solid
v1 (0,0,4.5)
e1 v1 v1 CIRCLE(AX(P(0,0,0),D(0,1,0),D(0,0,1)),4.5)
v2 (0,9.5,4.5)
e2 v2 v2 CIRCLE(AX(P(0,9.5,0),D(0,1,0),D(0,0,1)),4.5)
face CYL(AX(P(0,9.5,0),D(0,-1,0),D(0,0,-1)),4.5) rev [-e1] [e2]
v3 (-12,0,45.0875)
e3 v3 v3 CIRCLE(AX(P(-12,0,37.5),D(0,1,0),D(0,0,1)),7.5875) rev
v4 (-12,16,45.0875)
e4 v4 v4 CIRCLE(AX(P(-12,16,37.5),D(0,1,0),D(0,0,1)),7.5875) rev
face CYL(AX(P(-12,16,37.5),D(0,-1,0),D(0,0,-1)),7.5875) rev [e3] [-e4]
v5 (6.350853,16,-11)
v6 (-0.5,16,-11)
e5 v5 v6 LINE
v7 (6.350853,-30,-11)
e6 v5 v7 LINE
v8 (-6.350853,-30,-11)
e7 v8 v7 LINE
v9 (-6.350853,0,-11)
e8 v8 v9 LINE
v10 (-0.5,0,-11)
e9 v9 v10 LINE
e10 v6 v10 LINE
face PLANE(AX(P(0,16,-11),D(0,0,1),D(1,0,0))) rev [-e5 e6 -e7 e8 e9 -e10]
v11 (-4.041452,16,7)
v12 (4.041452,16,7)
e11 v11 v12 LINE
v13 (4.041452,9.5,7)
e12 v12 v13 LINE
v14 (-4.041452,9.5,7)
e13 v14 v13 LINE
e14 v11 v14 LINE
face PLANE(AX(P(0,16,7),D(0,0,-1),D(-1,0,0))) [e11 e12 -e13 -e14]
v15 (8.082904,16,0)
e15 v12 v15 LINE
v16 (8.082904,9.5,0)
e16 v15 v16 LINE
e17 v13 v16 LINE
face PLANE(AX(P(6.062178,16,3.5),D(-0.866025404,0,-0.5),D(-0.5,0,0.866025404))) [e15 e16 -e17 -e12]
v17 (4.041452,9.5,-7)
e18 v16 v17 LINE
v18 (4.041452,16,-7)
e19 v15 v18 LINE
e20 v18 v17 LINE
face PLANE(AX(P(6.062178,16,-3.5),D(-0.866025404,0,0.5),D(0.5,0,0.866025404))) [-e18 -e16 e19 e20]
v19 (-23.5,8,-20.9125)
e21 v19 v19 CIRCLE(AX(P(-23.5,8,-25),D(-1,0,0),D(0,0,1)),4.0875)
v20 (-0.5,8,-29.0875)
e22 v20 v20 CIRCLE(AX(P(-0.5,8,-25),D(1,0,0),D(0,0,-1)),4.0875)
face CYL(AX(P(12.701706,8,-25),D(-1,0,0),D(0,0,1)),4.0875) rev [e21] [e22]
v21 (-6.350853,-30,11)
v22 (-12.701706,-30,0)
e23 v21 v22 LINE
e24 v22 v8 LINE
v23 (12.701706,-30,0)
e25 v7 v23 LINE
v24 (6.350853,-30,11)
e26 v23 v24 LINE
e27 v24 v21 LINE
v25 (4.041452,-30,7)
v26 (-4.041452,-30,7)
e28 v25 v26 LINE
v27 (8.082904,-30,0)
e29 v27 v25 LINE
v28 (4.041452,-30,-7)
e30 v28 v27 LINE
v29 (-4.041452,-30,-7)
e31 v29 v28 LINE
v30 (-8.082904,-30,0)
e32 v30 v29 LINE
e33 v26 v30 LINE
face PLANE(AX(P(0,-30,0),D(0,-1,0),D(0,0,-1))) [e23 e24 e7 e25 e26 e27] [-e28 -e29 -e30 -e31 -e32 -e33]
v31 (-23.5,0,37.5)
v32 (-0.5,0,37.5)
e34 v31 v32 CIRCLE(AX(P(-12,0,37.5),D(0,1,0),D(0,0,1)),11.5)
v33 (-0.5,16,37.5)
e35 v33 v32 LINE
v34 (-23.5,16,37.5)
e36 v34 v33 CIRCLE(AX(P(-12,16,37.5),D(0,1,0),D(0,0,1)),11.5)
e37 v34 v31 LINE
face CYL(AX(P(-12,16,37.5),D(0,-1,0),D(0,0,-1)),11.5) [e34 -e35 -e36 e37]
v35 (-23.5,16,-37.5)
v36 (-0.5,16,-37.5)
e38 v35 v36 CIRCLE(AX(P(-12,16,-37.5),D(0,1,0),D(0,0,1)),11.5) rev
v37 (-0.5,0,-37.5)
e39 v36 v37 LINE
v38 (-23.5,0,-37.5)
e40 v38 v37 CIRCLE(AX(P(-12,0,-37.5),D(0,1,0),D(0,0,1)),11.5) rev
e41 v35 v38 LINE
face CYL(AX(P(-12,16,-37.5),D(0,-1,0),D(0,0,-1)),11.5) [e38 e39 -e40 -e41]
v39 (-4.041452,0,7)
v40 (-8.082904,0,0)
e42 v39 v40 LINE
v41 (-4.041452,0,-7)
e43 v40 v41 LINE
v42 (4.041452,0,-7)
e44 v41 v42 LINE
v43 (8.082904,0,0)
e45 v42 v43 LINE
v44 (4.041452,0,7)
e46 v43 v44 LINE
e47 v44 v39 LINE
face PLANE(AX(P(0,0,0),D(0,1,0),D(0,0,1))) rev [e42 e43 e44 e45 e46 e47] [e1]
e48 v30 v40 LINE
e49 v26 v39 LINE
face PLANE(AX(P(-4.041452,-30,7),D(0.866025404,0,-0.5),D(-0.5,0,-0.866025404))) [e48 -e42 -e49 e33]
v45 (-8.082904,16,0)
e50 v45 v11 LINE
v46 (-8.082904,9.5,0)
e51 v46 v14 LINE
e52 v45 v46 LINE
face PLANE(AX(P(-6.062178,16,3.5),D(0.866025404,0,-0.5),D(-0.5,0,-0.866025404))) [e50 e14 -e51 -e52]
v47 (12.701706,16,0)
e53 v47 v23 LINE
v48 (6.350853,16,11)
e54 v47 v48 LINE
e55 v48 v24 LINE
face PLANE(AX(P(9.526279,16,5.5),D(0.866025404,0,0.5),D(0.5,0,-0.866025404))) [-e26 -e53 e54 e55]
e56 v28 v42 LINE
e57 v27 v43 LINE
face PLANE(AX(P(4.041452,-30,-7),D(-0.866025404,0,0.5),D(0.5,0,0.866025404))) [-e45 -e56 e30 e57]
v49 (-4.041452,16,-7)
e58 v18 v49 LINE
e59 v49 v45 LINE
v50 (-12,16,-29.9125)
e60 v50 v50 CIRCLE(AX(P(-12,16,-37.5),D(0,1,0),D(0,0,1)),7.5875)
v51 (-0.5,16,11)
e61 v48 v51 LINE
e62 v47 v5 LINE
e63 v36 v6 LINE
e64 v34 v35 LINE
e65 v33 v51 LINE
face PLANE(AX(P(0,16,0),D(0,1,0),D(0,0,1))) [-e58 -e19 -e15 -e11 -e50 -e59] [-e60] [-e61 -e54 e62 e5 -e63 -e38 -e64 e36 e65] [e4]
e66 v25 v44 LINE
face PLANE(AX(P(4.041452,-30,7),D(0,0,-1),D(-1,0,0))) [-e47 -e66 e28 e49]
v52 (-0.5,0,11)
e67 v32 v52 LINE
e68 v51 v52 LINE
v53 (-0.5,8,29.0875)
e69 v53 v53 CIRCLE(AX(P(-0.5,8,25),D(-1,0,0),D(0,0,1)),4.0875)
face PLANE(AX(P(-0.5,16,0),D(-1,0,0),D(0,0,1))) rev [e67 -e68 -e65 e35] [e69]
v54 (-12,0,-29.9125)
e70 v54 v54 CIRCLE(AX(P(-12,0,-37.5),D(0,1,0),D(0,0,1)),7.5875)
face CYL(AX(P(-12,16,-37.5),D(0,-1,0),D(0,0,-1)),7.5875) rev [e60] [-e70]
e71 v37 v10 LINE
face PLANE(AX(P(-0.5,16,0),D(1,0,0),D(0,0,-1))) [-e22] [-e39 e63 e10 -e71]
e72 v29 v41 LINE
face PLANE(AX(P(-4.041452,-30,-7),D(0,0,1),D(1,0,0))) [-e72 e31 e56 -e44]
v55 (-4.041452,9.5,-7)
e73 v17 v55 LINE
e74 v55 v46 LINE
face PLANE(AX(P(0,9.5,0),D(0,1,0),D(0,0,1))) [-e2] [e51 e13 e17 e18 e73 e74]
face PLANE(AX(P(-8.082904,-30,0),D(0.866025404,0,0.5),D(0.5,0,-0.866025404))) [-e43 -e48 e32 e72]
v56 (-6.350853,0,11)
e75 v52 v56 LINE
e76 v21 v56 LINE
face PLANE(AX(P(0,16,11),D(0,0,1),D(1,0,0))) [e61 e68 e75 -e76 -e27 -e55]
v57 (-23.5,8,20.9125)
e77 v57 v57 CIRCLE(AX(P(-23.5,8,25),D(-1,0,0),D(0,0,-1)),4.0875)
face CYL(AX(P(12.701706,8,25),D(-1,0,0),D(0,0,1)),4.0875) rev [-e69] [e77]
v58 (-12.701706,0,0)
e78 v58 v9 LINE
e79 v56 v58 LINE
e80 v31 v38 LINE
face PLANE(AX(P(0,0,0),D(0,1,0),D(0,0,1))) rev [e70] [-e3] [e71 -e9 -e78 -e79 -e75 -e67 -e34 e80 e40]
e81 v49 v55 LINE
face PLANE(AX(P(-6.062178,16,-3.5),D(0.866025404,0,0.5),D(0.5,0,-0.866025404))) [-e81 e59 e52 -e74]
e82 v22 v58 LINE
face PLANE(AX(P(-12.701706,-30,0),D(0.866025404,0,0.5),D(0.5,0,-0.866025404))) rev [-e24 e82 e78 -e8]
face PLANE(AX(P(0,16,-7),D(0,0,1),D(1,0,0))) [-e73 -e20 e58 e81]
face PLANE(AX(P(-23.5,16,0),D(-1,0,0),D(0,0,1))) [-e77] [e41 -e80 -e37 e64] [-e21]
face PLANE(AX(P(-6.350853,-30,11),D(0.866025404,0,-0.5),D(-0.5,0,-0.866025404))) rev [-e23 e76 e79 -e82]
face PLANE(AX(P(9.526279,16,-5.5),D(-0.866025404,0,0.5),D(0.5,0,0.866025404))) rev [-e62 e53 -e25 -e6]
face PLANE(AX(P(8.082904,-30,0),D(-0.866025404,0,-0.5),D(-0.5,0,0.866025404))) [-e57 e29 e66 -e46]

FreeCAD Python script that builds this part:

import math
import FreeCAD as App
import Part
import Sketcher
Q = App.Units.Quantity


def add_polygon(sketch, points):
    """Adds a closed chain of lines whose ends are joined by coincident constraints."""
    first, n = sketch.GeometryCount, len(points)
    for a, b in zip(points, points[1:] + points[:1]):
        sketch.addGeometry(Part.LineSegment(App.Vector(*a, 0), App.Vector(*b, 0)), False)
    for i in range(n):
        sketch.addConstraint(Sketcher.Constraint("Coincident", first + i, 2, first + (i + 1) % n, 1))

doc = App.newDocument("Part")
params = doc.addObject("Spreadsheet::Sheet", "Params")
for row, (alias, value) in enumerate([
    ("sketch1_radius", "11.5 mm"),
    ("sketch1_height", "75 mm"),
    ("sketch1_height2", "26.5 mm"),
    ("pad1_length", "16 mm"),
    ("sketch3_diameter", "9 mm"),
    ("pad2_length", "9.5 mm"),
    ("pad3_length", "30 mm"),
], start=1):
    params.set(f"A{row}", alias)
    params.set(f"B{row}", "=" + value)
    params.setAlias(f"B{row}", alias)

body = doc.addObject("PartDesign::Body", "Body")

# Sketch on XZ plane
sketch1 = doc.addObject("Sketcher::SketchObject", "Sketch")
body.addObject(sketch1)
sketch1.AttachmentSupport = (doc.XZ_Plane, [""])
sketch1.MapMode = "FlatFace"
sketch1.addGeometry(Part.ArcOfCircle(Part.Circle(App.Vector(-12, -38, 0), App.Vector(0, 0, 1), 12), math.radians(180), math.radians(360)), False)  # 0
sketch1.addGeometry(Part.LineSegment(App.Vector(-24, -38, 0), App.Vector(-24, 38, 0)), False)  # 1
sketch1.addGeometry(Part.ArcOfCircle(Part.Circle(App.Vector(-12, 38, 0), App.Vector(0, 0, 1), 12), math.radians(0), math.radians(180)), False)  # 2
sketch1.addGeometry(Part.LineSegment(App.Vector(0, 38, 0), App.Vector(0, 11, 0)), False)  # 3
sketch1.addGeometry(Part.LineSegment(App.Vector(0, 11, 0), App.Vector(6, 11, 0)), False)  # 4
sketch1.addGeometry(Part.LineSegment(App.Vector(6, 11, 0), App.Vector(13, 0, 0)), False)  # 5
sketch1.addGeometry(Part.LineSegment(App.Vector(13, 0, 0), App.Vector(6, -11, 0)), False)  # 6
sketch1.addGeometry(Part.LineSegment(App.Vector(6, -11, 0), App.Vector(0, -11, 0)), False)  # 7
sketch1.addGeometry(Part.LineSegment(App.Vector(0, -11, 0), App.Vector(0, -38, 0)), False)  # 8
sketch1.addGeometry(Part.Circle(App.Vector(-12, 38, 0), App.Vector(0, 0, 1), 8), False)  # 9
add_polygon(sketch1, [(8, 0), (4, 7), (-4, 7), (-8, 0), (-4, -7), (4, -7)])  # lines 10-15
sketch1.addGeometry(Part.Circle(App.Vector(-12, -38, 0), App.Vector(0, 0, 1), 8), False)  # 16
sketch1.addConstraint(Sketcher.Constraint("Tangent", 0, 1, 1, 1))
sketch1.addConstraint(Sketcher.Constraint("Tangent", 1, 2, 2, 2))
sketch1.addConstraint(Sketcher.Constraint("Tangent", 2, 1, 3, 1))
sketch1.addConstraint(Sketcher.Constraint("Coincident", 3, 2, 4, 1))
sketch1.addConstraint(Sketcher.Constraint("Coincident", 4, 2, 5, 1))
sketch1.addConstraint(Sketcher.Constraint("Coincident", 5, 2, 6, 1))
sketch1.addConstraint(Sketcher.Constraint("Coincident", 6, 2, 7, 1))
sketch1.addConstraint(Sketcher.Constraint("Coincident", 7, 2, 8, 1))
sketch1.addConstraint(Sketcher.Constraint("Tangent", 8, 2, 0, 2))
sketch1.addConstraint(Sketcher.Constraint("Vertical", 1))
sketch1.addConstraint(Sketcher.Constraint("Vertical", 3))
sketch1.addConstraint(Sketcher.Constraint("Horizontal", 4))
sketch1.addConstraint(Sketcher.Constraint("Horizontal", 7))
sketch1.addConstraint(Sketcher.Constraint("Vertical", 8))
sketch1.addConstraint(Sketcher.Constraint("Horizontal", 11))
sketch1.addConstraint(Sketcher.Constraint("Horizontal", 14))
sketch1.addConstraint(Sketcher.Constraint("Coincident", 9, 3, 2, 3))
sketch1.addConstraint(Sketcher.Constraint("Coincident", 16, 3, 0, 3))
sketch1.addConstraint(Sketcher.Constraint("Equal", 0, 2))
sketch1.addConstraint(Sketcher.Constraint("Equal", 9, 16))
sketch1.addConstraint(Sketcher.Constraint("Symmetric", 10, 2, 13, 2, -1, 1))
sketch1.addConstraint(Sketcher.Constraint("Symmetric", 12, 2, 15, 2, -1, 1))
sketch1.addConstraint(Sketcher.Constraint("Symmetric", 4, 2, 6, 2, -1))
sketch1.addConstraint(Sketcher.Constraint("PointOnObject", 5, 2, -1))
sketch1.addConstraint(Sketcher.Constraint("PointOnObject", 12, 2, -1))
sketch1.addConstraint(Sketcher.Constraint("Parallel", 5, 10))
sketch1.addConstraint(Sketcher.Constraint("Parallel", 6, 12))
sketch1.addConstraint(Sketcher.Constraint("Parallel", 12, 15))
sketch1.addConstraint(Sketcher.Constraint("Equal", 3, 8))
sketch1.addConstraint(Sketcher.Constraint("Radius", 0, 11.5))
sketch1.addConstraint(Sketcher.Constraint("DistanceY", 1, 1, 1, 2, 75.0))
sketch1.addConstraint(Sketcher.Constraint("Angle", 5, Q("-60 deg")))
sketch1.addConstraint(Sketcher.Constraint("Diameter", 9, 15.175))
sketch1.addConstraint(Sketcher.Constraint("DistanceY", 3, 2, 3, 1, 26.5))
sketch1.addConstraint(Sketcher.Constraint("DistanceX", 0, 3, -1, 1, 12.0))
sketch1.addConstraint(Sketcher.Constraint("DistanceY", -1, 1, 10, 2, 7.0))
sketch1.addConstraint(Sketcher.Constraint("DistanceX", 10, 2, 4, 2, 2.309401))
sketch1.addConstraint(Sketcher.Constraint("DistanceX", 4, 1, 4, 2, 6.850853))
sketch1.setExpression("Constraints[35]", "Params.sketch1_radius")
sketch1.setExpression("Constraints[36]", "Params.sketch1_height")
sketch1.setExpression("Constraints[39]", "Params.sketch1_height2")
pad1 = doc.addObject("PartDesign::Pad", "Pad")
body.addObject(pad1)
pad1.Profile = sketch1
pad1.setExpression("Length", "Params.pad1_length")
pad1.Reversed = True

# Sketch on YZ plane
sketch2 = doc.addObject("Sketcher::SketchObject", "Sketch001")
body.addObject(sketch2)
sketch2.AttachmentSupport = (doc.YZ_Plane, [""])
sketch2.MapMode = "FlatFace"
sketch2.AttachmentOffset = App.Placement(App.Vector(0, 0, -23.5), App.Rotation())
sketch2.addGeometry(Part.Circle(App.Vector(8, -25, 0), App.Vector(0, 0, 1), 4.1), False)
sketch2.addGeometry(Part.Circle(App.Vector(8, 25, 0), App.Vector(0, 0, 1), 4.1), False)
sketch2.addConstraint(Sketcher.Constraint("Equal", 0, 1))
sketch2.addConstraint(Sketcher.Constraint("Symmetric", 0, 3, 1, 3, -1))
sketch2.addConstraint(Sketcher.Constraint("Diameter", 0, 8.175))
sketch2.addConstraint(Sketcher.Constraint("DistanceX", -1, 1, 0, 3, 8.0))
sketch2.addConstraint(Sketcher.Constraint("DistanceY", 0, 3, -1, 1, 25.0))
pocket1 = doc.addObject("PartDesign::Pocket", "Pocket")
body.addObject(pocket1)
pocket1.Profile = sketch2
pocket1.Type = "ThroughAll"
pocket1.Reversed = True

# Sketch on XZ plane
sketch3 = doc.addObject("Sketcher::SketchObject", "Sketch002")
body.addObject(sketch3)
sketch3.AttachmentSupport = (doc.XZ_Plane, [""])
sketch3.MapMode = "FlatFace"
add_polygon(sketch3, [(-4, 7), (4, 7), (8.1, 0), (4, -7), (-4, -7), (-8.1, 0)])  # lines 0-5
sketch3.addGeometry(Part.Circle(App.Vector(0, 0, 0), App.Vector(0, 0, 1), 4.5), False)  # 6
sketch3.addConstraint(Sketcher.Constraint("Horizontal", 0))
sketch3.addConstraint(Sketcher.Constraint("Horizontal", 3))
sketch3.addConstraint(Sketcher.Constraint("Coincident", 6, 3, -1, 1))
sketch3.addConstraint(Sketcher.Constraint("Symmetric", 0, 2, 3, 2, -1, 1))
sketch3.addConstraint(Sketcher.Constraint("Symmetric", 1, 2, 4, 2, -1, 1))
sketch3.addConstraint(Sketcher.Constraint("PointOnObject", 1, 2, -1))
sketch3.addConstraint(Sketcher.Constraint("Parallel", 2, 5))
sketch3.addConstraint(Sketcher.Constraint("Vertical", 0, 2, 2, 2))
sketch3.addConstraint(Sketcher.Constraint("Diameter", 6, 9.0))
sketch3.addConstraint(Sketcher.Constraint("Angle", 1, Q("-60 deg")))
sketch3.addConstraint(Sketcher.Constraint("DistanceY", -1, 1, 0, 2, 7.0))
sketch3.addConstraint(Sketcher.Constraint("DistanceX", 0, 1, 0, 2, 8.082904))
sketch3.setExpression("Constraints[14]", "Params.sketch3_diameter")
pad2 = doc.addObject("PartDesign::Pad", "Pad001")
body.addObject(pad2)
pad2.Profile = sketch3
pad2.setExpression("Length", "Params.pad2_length")
pad2.Reversed = True

# Sketch on XZ plane
sketch4 = doc.addObject("Sketcher::SketchObject", "Sketch003")
body.addObject(sketch4)
sketch4.AttachmentSupport = (doc.XZ_Plane, [""])
sketch4.MapMode = "FlatFace"
add_polygon(sketch4, [(13, 0), (6, 11), (-6, 11), (-13, 0), (-6, -11), (6, -11)])  # lines 0-5
add_polygon(sketch4, [(4, 7), (8, 0), (4, -7), (-4, -7), (-8, 0), (-4, 7)])  # lines 6-11
sketch4.addConstraint(Sketcher.Constraint("Horizontal", 1))
sketch4.addConstraint(Sketcher.Constraint("Horizontal", 4))
sketch4.addConstraint(Sketcher.Constraint("Horizontal", 8))
sketch4.addConstraint(Sketcher.Constraint("Horizontal", 11))
sketch4.addConstraint(Sketcher.Constraint("Symmetric", 0, 2, 3, 2, -1, 1))
sketch4.addConstraint(Sketcher.Constraint("Symmetric", 2, 2, 5, 2, -1, 1))
sketch4.addConstraint(Sketcher.Constraint("Symmetric", 6, 2, 9, 2, -1, 1))
sketch4.addConstraint(Sketcher.Constraint("Symmetric", 7, 2, 10, 2, -1, 1))
sketch4.addConstraint(Sketcher.Constraint("PointOnObject", 2, 2, -1))
sketch4.addConstraint(Sketcher.Constraint("PointOnObject", 6, 2, -1))
sketch4.addConstraint(Sketcher.Constraint("Parallel", 2, 5))
sketch4.addConstraint(Sketcher.Constraint("Parallel", 3, 6))
sketch4.addConstraint(Sketcher.Constraint("Parallel", 5, 7))
sketch4.addConstraint(Sketcher.Constraint("Parallel", 6, 9))
sketch4.addConstraint(Sketcher.Constraint("Vertical", 1, 2, 3, 2))
sketch4.addConstraint(Sketcher.Constraint("Angle", 0, Q("120 deg")))
sketch4.addConstraint(Sketcher.Constraint("DistanceY", -1, 1, 0, 2, 11.0))
sketch4.addConstraint(Sketcher.Constraint("DistanceY", 7, 2, -1, 1, 7.0))
sketch4.addConstraint(Sketcher.Constraint("DistanceX", 7, 2, 4, 2, 2.309401))
sketch4.addConstraint(Sketcher.Constraint("DistanceX", 1, 2, 1, 1, 12.701706))
pad3 = doc.addObject("PartDesign::Pad", "Pad002")
body.addObject(pad3)
pad3.Profile = sketch4
pad3.setExpression("Length", "Params.pad3_length")

doc.recompute()
